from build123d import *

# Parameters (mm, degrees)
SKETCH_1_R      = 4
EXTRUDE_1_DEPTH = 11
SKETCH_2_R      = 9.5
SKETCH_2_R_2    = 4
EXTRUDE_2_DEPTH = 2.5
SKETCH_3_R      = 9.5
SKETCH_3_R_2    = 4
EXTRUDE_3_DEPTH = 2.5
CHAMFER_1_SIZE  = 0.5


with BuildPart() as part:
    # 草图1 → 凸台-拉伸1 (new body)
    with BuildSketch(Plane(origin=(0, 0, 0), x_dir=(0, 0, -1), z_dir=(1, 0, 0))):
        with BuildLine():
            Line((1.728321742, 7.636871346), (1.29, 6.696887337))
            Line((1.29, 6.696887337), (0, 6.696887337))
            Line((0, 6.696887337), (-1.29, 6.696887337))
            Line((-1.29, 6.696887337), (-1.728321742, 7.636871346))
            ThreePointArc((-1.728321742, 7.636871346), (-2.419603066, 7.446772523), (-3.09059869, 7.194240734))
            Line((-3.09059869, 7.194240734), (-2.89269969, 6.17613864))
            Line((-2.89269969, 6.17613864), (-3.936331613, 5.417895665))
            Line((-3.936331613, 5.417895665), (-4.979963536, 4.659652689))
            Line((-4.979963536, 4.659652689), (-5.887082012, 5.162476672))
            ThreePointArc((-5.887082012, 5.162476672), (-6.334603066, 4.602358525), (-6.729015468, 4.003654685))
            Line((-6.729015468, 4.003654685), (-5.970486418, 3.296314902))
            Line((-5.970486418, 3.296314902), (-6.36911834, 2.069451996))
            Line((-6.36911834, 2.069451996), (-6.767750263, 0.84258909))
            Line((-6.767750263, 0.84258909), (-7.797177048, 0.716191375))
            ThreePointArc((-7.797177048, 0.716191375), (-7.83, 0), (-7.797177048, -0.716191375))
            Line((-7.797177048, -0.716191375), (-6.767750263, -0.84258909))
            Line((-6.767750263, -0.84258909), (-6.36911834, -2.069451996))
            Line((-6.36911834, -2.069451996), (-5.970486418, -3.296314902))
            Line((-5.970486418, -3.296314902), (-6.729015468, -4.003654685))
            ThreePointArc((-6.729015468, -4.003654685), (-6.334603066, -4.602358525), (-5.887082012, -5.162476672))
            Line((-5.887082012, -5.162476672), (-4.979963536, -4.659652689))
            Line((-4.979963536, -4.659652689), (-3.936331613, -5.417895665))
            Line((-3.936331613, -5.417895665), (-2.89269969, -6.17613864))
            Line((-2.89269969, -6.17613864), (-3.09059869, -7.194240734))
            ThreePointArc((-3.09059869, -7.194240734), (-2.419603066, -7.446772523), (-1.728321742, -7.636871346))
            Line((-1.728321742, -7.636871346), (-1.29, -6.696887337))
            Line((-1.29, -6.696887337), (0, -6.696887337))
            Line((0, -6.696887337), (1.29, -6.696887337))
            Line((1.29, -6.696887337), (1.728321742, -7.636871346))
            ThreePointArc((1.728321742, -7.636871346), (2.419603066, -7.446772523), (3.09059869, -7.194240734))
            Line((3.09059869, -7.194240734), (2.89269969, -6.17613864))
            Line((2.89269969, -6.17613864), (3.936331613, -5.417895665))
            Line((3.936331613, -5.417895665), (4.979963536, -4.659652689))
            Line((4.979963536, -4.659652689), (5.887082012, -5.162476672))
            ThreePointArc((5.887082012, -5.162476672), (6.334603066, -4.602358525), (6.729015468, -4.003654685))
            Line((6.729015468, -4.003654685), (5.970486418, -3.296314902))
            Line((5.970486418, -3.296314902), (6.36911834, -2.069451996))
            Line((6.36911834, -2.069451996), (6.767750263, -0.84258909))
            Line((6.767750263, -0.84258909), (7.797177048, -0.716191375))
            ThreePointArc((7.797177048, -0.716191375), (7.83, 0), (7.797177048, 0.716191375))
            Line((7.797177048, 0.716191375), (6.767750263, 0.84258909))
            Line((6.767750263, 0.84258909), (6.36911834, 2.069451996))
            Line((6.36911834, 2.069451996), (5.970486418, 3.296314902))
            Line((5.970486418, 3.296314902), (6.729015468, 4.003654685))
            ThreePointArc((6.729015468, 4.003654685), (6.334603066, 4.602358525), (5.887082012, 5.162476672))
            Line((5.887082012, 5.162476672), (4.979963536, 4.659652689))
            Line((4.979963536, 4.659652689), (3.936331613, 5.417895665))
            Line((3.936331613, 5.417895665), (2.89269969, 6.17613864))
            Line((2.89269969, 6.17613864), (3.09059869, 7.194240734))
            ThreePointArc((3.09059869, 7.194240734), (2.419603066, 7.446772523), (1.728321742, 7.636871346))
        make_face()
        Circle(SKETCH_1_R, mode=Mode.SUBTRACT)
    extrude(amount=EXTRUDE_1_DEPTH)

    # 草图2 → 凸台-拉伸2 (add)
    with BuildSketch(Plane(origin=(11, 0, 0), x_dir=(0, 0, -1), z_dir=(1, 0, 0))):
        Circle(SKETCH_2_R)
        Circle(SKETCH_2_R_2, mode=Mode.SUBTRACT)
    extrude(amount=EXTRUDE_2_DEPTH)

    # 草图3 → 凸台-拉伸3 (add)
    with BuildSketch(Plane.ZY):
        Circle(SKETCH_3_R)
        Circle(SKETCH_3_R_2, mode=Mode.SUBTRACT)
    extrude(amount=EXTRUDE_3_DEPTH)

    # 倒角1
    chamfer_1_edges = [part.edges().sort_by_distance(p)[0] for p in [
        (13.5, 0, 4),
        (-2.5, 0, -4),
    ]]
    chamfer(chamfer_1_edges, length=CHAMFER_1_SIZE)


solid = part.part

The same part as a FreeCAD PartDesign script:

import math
import FreeCAD as App
import Part
import Sketcher

V = App.Vector
Q = App.Units.Quantity


def edges_at(feature, points):
    """Names of the edges that pass closest to the given points."""
    edges = feature.Shape.Edges
    near = lambda p: min(range(len(edges)), key=lambda i: edges[i].distToShape(Part.Vertex(*p))[0])
    return sorted({f"Edge{near(p) + 1}" for p in points})

doc = App.newDocument("Part")
body = doc.addObject("PartDesign::Body", "Body")

sketch1 = doc.addObject("Sketcher::SketchObject", "Sketch")
body.addObject(sketch1)
sketch1.AttachmentSupport = (doc.YZ_Plane, [""])
sketch1.MapMode = "FlatFace"
sketch1.addGeometry(Part.LineSegment(V(7.6, -1.7, 0), V(6.7, -1.3, 0)), False)
sketch1.addGeometry(Part.LineSegment(V(6.7, -1.3, 0), V(6.7, 1.3, 0)), False)
sketch1.addGeometry(Part.LineSegment(V(6.7, 1.3, 0), V(7.6, 1.7, 0)), False)
sketch1.addGeometry(Part.ArcOfCircle(Part.Circle(V(0, 0, 0), V(0, 0, 1), 7.8), math.radians(12.75), math.radians(23.25)), False)
sketch1.addGeometry(Part.LineSegment(V(7.2, 3.1, 0), V(6.2, 2.9, 0)), False)
sketch1.addGeometry(Part.LineSegment(V(6.2, 2.9, 0), V(5.4, 3.9, 0)), False)
sketch1.addGeometry(Part.LineSegment(V(5.4, 3.9, 0), V(4.7, 5, 0)), False)
sketch1.addGeometry(Part.LineSegment(V(4.7, 5, 0), V(5.2, 5.9, 0)), False)
sketch1.addGeometry(Part.ArcOfCircle(Part.Circle(V(0, 0, 0), V(0, 0, 1), 7.8), math.radians(48.75), math.radians(59.25)), False)
sketch1.addGeometry(Part.LineSegment(V(4, 6.7, 0), V(3.3, 6, 0)), False)
sketch1.addGeometry(Part.LineSegment(V(3.3, 6, 0), V(2.1, 6.4, 0)), False)
sketch1.addGeometry(Part.LineSegment(V(2.1, 6.4, 0), V(0.8, 6.8, 0)), False)
sketch1.addGeometry(Part.LineSegment(V(0.8, 6.8, 0), V(0.7, 7.8, 0)), False)
sketch1.addGeometry(Part.ArcOfCircle(Part.Circle(V(0, 0, 0), V(0, 0, 1), 7.8), math.radians(84.75), math.radians(95.25)), False)
sketch1.addGeometry(Part.LineSegment(V(-0.7, 7.8, 0), V(-0.8, 6.8, 0)), False)
sketch1.addGeometry(Part.LineSegment(V(-0.8, 6.8, 0), V(-2.1, 6.4, 0)), False)
sketch1.addGeometry(Part.LineSegment(V(-2.1, 6.4, 0), V(-3.3, 6, 0)), False)
sketch1.addGeometry(Part.LineSegment(V(-3.3, 6, 0), V(-4, 6.7, 0)), False)
sketch1.addGeometry(Part.ArcOfCircle(Part.Circle(V(0, 0, 0), V(0, 0, 1), 7.8), math.radians(120.75), math.radians(131.25)), False)
sketch1.addGeometry(Part.LineSegment(V(-5.2, 5.9, 0), V(-4.7, 5, 0)), False)
sketch1.addGeometry(Part.LineSegment(V(-4.7, 5, 0), V(-5.4, 3.9, 0)), False)
sketch1.addGeometry(Part.LineSegment(V(-5.4, 3.9, 0), V(-6.2, 2.9, 0)), False)
sketch1.addGeometry(Part.LineSegment(V(-6.2, 2.9, 0), V(-7.2, 3.1, 0)), False)
sketch1.addGeometry(Part.ArcOfCircle(Part.Circle(V(0, 0, 0), V(0, 0, 1), 7.8), math.radians(156.75), math.radians(167.25)), False)
sketch1.addGeometry(Part.LineSegment(V(-7.6, 1.7, 0), V(-6.7, 1.3, 0)), False)
sketch1.addGeometry(Part.LineSegment(V(-6.7, 1.3, 0), V(-6.7, -1.3, 0)), False)
sketch1.addGeometry(Part.LineSegment(V(-6.7, -1.3, 0), V(-7.6, -1.7, 0)), False)
sketch1.addGeometry(Part.ArcOfCircle(Part.Circle(V(0, 0, 0), V(0, 0, 1), 7.8), math.radians(-167.25), math.radians(-156.75)), False)
sketch1.addGeometry(Part.LineSegment(V(-7.2, -3.1, 0), V(-6.2, -2.9, 0)), False)
sketch1.addGeometry(Part.LineSegment(V(-6.2, -2.9, 0), V(-5.4, -3.9, 0)), False)
sketch1.addGeometry(Part.LineSegment(V(-5.4, -3.9, 0), V(-4.7, -5, 0)), False)
sketch1.addGeometry(Part.LineSegment(V(-4.7, -5, 0), V(-5.2, -5.9, 0)), False)
sketch1.addGeometry(Part.ArcOfCircle(Part.Circle(V(0, 0, 0), V(0, 0, 1), 7.8), math.radians(-131.25), math.radians(-120.75)), False)
sketch1.addGeometry(Part.LineSegment(V(-4, -6.7, 0), V(-3.3, -6, 0)), False)
sketch1.addGeometry(Part.LineSegment(V(-3.3, -6, 0), V(-2.1, -6.4, 0)), False)
sketch1.addGeometry(Part.LineSegment(V(-2.1, -6.4, 0), V(-0.8, -6.8, 0)), False)
sketch1.addGeometry(Part.LineSegment(V(-0.8, -6.8, 0), V(-0.7, -7.8, 0)), False)
sketch1.addGeometry(Part.ArcOfCircle(Part.Circle(V(0, 0, 0), V(0, 0, 1), 7.8), math.radians(-95.25), math.radians(-84.75)), False)
sketch1.addGeometry(Part.LineSegment(V(0.7, -7.8, 0), V(0.8, -6.8, 0)), False)
sketch1.addGeometry(Part.LineSegment(V(0.8, -6.8, 0), V(2.1, -6.4, 0)), False)
sketch1.addGeometry(Part.LineSegment(V(2.1, -6.4, 0), V(3.3, -6, 0)), False)
sketch1.addGeometry(Part.LineSegment(V(3.3, -6, 0), V(4, -6.7, 0)), False)
sketch1.addGeometry(Part.ArcOfCircle(Part.Circle(V(0, 0, 0), V(0, 0, 1), 7.8), math.radians(-59.25), math.radians(-48.75)), False)
sketch1.addGeometry(Part.LineSegment(V(5.2, -5.9, 0), V(4.7, -5, 0)), False)
sketch1.addGeometry(Part.LineSegment(V(4.7, -5, 0), V(5.4, -3.9, 0)), False)
sketch1.addGeometry(Part.LineSegment(V(5.4, -3.9, 0), V(6.2, -2.9, 0)), False)
sketch1.addGeometry(Part.LineSegment(V(6.2, -2.9, 0), V(7.2, -3.1, 0)), False)
sketch1.addGeometry(Part.ArcOfCircle(Part.Circle(V(0, 0, 0), V(0, 0, 1), 7.8), math.radians(-23.25), math.radians(-12.75)), False)
sketch1.addGeometry(Part.Circle(V(0, 0, 0), V(0, 0, 1), 4), False)
sketch1.addConstraint(Sketcher.Constraint("Coincident", 0, 2, 1, 1))
sketch1.addConstraint(Sketcher.Constraint("Coincident", 1, 2, 2, 1))
sketch1.addConstraint(Sketcher.Constraint("Coincident", 2, 2, 3, 1))
sketch1.addConstraint(Sketcher.Constraint("Coincident", 3, 2, 4, 1))
sketch1.addConstraint(Sketcher.Constraint("Coincident", 4, 2, 5, 1))
sketch1.addConstraint(Sketcher.Constraint("Coincident", 5, 2, 6, 1))
sketch1.addConstraint(Sketcher.Constraint("Coincident", 6, 2, 7, 1))
sketch1.addConstraint(Sketcher.Constraint("Coincident", 7, 2, 8, 1))
sketch1.addConstraint(Sketcher.Constraint("Coincident", 8, 2, 9, 1))
sketch1.addConstraint(Sketcher.Constraint("Coincident", 9, 2, 10, 1))
sketch1.addConstraint(Sketcher.Constraint("Coincident", 10, 2, 11, 1))
sketch1.addConstraint(Sketcher.Constraint("Coincident", 11, 2, 12, 1))
sketch1.addConstraint(Sketcher.Constraint("Coincident", 12, 2, 13, 1))
sketch1.addConstraint(Sketcher.Constraint("Coincident", 13, 2, 14, 1))
sketch1.addConstraint(Sketcher.Constraint("Coincident", 14, 2, 15, 1))
sketch1.addConstraint(Sketcher.Constraint("Coincident", 15, 2, 16, 1))
sketch1.addConstraint(Sketcher.Constraint("Coincident", 16, 2, 17, 1))
sketch1.addConstraint(Sketcher.Constraint("Coincident", 17, 2, 18, 1))
sketch1.addConstraint(Sketcher.Constraint("Coincident", 18, 2, 19, 1))
sketch1.addConstraint(Sketcher.Constraint("Coincident", 19, 2, 20, 1))
sketch1.addConstraint(Sketcher.Constraint("Coincident", 20, 2, 21, 1))
sketch1.addConstraint(Sketcher.Constraint("Coincident", 21, 2, 22, 1))
sketch1.addConstraint(Sketcher.Constraint("Coincident", 22, 2, 23, 1))
sketch1.addConstraint(Sketcher.Constraint("Coincident", 23, 2, 24, 1))
sketch1.addConstraint(Sketcher.Constraint("Coincident", 24, 2, 25, 1))
sketch1.addConstraint(Sketcher.Constraint("Coincident", 25, 2, 26, 1))
sketch1.addConstraint(Sketcher.Constraint("Coincident", 26, 2, 27, 1))
sketch1.addConstraint(Sketcher.Constraint("Coincident", 27, 2, 28, 1))
sketch1.addConstraint(Sketcher.Constraint("Coincident", 28, 2, 29, 1))
sketch1.addConstraint(Sketcher.Constraint("Coincident", 29, 2, 30, 1))
sketch1.addConstraint(Sketcher.Constraint("Coincident", 30, 2, 31, 1))
sketch1.addConstraint(Sketcher.Constraint("Coincident", 31, 2, 32, 1))
sketch1.addConstraint(Sketcher.Constraint("Coincident", 32, 2, 33, 1))
sketch1.addConstraint(Sketcher.Constraint("Coincident", 33, 2, 34, 1))
sketch1.addConstraint(Sketcher.Constraint("Coincident", 34, 2, 35, 1))
sketch1.addConstraint(Sketcher.Constraint("Coincident", 35, 2, 36, 1))
sketch1.addConstraint(Sketcher.Constraint("Coincident", 36, 2, 37, 1))
sketch1.addConstraint(Sketcher.Constraint("Coincident", 37, 2, 38, 1))
sketch1.addConstraint(Sketcher.Constraint("Coincident", 38, 2, 39, 1))
sketch1.addConstraint(Sketcher.Constraint("Coincident", 39, 2, 40, 1))
sketch1.addConstraint(Sketcher.Constraint("Coincident", 40, 2, 41, 1))
sketch1.addConstraint(Sketcher.Constraint("Coincident", 41, 2, 42, 1))
sketch1.addConstraint(Sketcher.Constraint("Coincident", 42, 2, 43, 1))
sketch1.addConstraint(Sketcher.Constraint("Coincident", 43, 2, 44, 1))
sketch1.addConstraint(Sketcher.Constraint("Coincident", 44, 2, 45, 1))
sketch1.addConstraint(Sketcher.Constraint("Coincident", 45, 2, 46, 1))
sketch1.addConstraint(Sketcher.Constraint("Coincident", 46, 2, 47, 1))
sketch1.addConstraint(Sketcher.Constraint("Coincident", 47, 2, 0, 1))
sketch1.addConstraint(Sketcher.Constraint("Vertical", 1))
sketch1.addConstraint(Sketcher.Constraint("Vertical", 25))
sketch1.addConstraint(Sketcher.Constraint("Coincident", 3, 3, -1, 1))
sketch1.addConstraint(Sketcher.Constraint("Coincident", 8, 3, -1, 1))
sketch1.addConstraint(Sketcher.Constraint("Coincident", 13, 3, -1, 1))
sketch1.addConstraint(Sketcher.Constraint("Coincident", 18, 3, -1, 1))
sketch1.addConstraint(Sketcher.Constraint("Coincident", 23, 3, -1, 1))
sketch1.addConstraint(Sketcher.Constraint("Coincident", 27, 3, -1, 1))
sketch1.addConstraint(Sketcher.Constraint("Coincident", 32, 3, -1, 1))
sketch1.addConstraint(Sketcher.Constraint("Coincident", 37, 3, -1, 1))
sketch1.addConstraint(Sketcher.Constraint("Coincident", 42, 3, -1, 1))
sketch1.addConstraint(Sketcher.Constraint("Coincident", 47, 3, -1, 1))
sketch1.addConstraint(Sketcher.Constraint("Coincident", 48, 3, -1, 1))
sketch1.addConstraint(Sketcher.Constraint("Equal", 3, 8))
sketch1.addConstraint(Sketcher.Constraint("Equal", 8, 13))
sketch1.addConstraint(Sketcher.Constraint("Equal", 13, 18))
sketch1.addConstraint(Sketcher.Constraint("Equal", 18, 23))
sketch1.addConstraint(Sketcher.Constraint("Equal", 23, 27))
sketch1.addConstraint(Sketcher.Constraint("Equal", 27, 32))
sketch1.addConstraint(Sketcher.Constraint("Equal", 32, 37))
sketch1.addConstraint(Sketcher.Constraint("Equal", 37, 42))
sketch1.addConstraint(Sketcher.Constraint("Equal", 42, 47))
sketch1.addConstraint(Sketcher.Constraint("Symmetric", 0, 2, 24, 2, -1, 1))
sketch1.addConstraint(Sketcher.Constraint("Symmetric", 4, 2, 28, 2, -1, 1))
sketch1.addConstraint(Sketcher.Constraint("Symmetric", 5, 2, 29, 2, -1, 1))
sketch1.addConstraint(Sketcher.Constraint("Symmetric", 6, 2, 30, 2, -1, 1))
sketch1.addConstraint(Sketcher.Constraint("Symmetric", 9, 2, 33, 2, -1, 1))
sketch1.addConstraint(Sketcher.Constraint("Symmetric", 10, 2, 34, 2, -1, 1))
sketch1.addConstraint(Sketcher.Constraint("Symmetric", 11, 2, 35, 2, -1, 1))
sketch1.addConstraint(Sketcher.Constraint("Symmetric", 14, 2, 38, 2, -1, 1))
sketch1.addConstraint(Sketcher.Constraint("Symmetric", 15, 2, 39, 2, -1, 1))
sketch1.addConstraint(Sketcher.Constraint("Symmetric", 16, 2, 40, 2, -1, 1))
sketch1.addConstraint(Sketcher.Constraint("Symmetric", 19, 2, 43, 2, -1, 1))
sketch1.addConstraint(Sketcher.Constraint("Symmetric", 20, 2, 44, 2, -1, 1))
sketch1.addConstraint(Sketcher.Constraint("Symmetric", 21, 2, 45, 2, -1, 1))
sketch1.addConstraint(Sketcher.Constraint("Symmetric", 11, 2, 14, 2, -2))
sketch1.addConstraint(Sketcher.Constraint("Symmetric", 10, 2, 15, 2, -2))
sketch1.addConstraint(Sketcher.Constraint("Symmetric", 9, 2, 16, 2, -2))
sketch1.addConstraint(Sketcher.Constraint("Symmetric", 6, 2, 19, 2, -2))
sketch1.addConstraint(Sketcher.Constraint("Symmetric", 5, 2, 20, 2, -2))
sketch1.addConstraint(Sketcher.Constraint("Symmetric", 4, 2, 21, 2, -2))
sketch1.addConstraint(Sketcher.Constraint("Parallel", 5, 6))
sketch1.addConstraint(Sketcher.Constraint("Parallel", 10, 11))
sketch1.addConstraint(Sketcher.Constraint("Parallel", 0, 24))
sketch1.addConstraint(Sketcher.Constraint("Parallel", 2, 26))
sketch1.addConstraint(Sketcher.Constraint("Parallel", 4, 28))
sketch1.addConstraint(Sketcher.Constraint("Parallel", 7, 31))
sketch1.addConstraint(Sketcher.Constraint("Parallel", 9, 33))
sketch1.addConstraint(Sketcher.Constraint("Parallel", 12, 36))
sketch1.addConstraint(Sketcher.Constraint("Parallel", 14, 38))
sketch1.addConstraint(Sketcher.Constraint("Parallel", 17, 41))
sketch1.addConstraint(Sketcher.Constraint("Parallel", 19, 43))
sketch1.addConstraint(Sketcher.Constraint("Parallel", 22, 46))
sketch1.addConstraint(Sketcher.Constraint("Horizontal", 12, 2, 13, 2))
sketch1.addConstraint(Sketcher.Constraint("Horizontal", 8, 2, 17, 2))
sketch1.addConstraint(Sketcher.Constraint("Horizontal", 7, 2, 18, 2))
sketch1.addConstraint(Sketcher.Constraint("Horizontal", 3, 2, 22, 2))
sketch1.addConstraint(Sketcher.Constraint("Horizontal", 2, 2, 23, 2))
sketch1.addConstraint(Sketcher.Constraint("Horizontal", 1, 2, 24, 2))
sketch1.addConstraint(Sketcher.Constraint("Horizontal", 0, 2, 25, 2))
sketch1.addConstraint(Sketcher.Constraint("Equal", 2, 4))
sketch1.addConstraint(Sketcher.Constraint("Equal", 5, 6))
sketch1.addConstraint(Sketcher.Constraint("Equal", 4, 7))
sketch1.addConstraint(Sketcher.Constraint("Equal", 7, 9))
sketch1.addConstraint(Sketcher.Constraint("Equal", 6, 10))
sketch1.addConstraint(Sketcher.Constraint("Equal", 10, 11))
sketch1.addConstraint(Sketcher.Constraint("Equal", 9, 12))
sketch1.addConstraint(Sketcher.Constraint("Diameter", 48, Q("8 mm")))
sketch1.addConstraint(Sketcher.Constraint("Angle", 0, Q("155 deg")))
sketch1.addConstraint(Sketcher.Constraint("Angle", 4, Q("-169 deg")))
sketch1.addConstraint(Sketcher.Constraint("Angle", 5, Q("126 deg")))
sketch1.addConstraint(Sketcher.Constraint("Angle", 7, Q("61 deg")))
sketch1.addConstraint(Sketcher.Constraint("Angle", 9, Q("-133 deg")))
sketch1.addConstraint(Sketcher.Constraint("Angle", 10, Q("162 deg")))
sketch1.addConstraint(Sketcher.Constraint("Angle", 12, Q("97 deg")))
sketch1.addConstraint(Sketcher.Constraint("Radius", 3, Q("7.83 mm")))
sketch1.addConstraint(Sketcher.Constraint("DistanceY", 1, 1, 1, 2, Q("2.58 mm")))
sketch1.addConstraint(Sketcher.Constraint("Distance", 5, Q("1.29 mm")))
sketch1.addConstraint(Sketcher.Constraint("DistanceX", 8, 2, 6, 2, Q("0.655998 mm")))
pad1 = doc.addObject("PartDesign::Pad", "Pad")
body.addObject(pad1)
pad1.Profile = sketch1
pad1.Length = 11

sketch2 = doc.addObject("Sketcher::SketchObject", "Sketch001")
body.addObject(sketch2)
sketch2.AttachmentSupport = (doc.YZ_Plane, [""])
sketch2.MapMode = "FlatFace"
sketch2.AttachmentOffset = App.Placement(V(0, 0, 11), App.Rotation())
sketch2.addGeometry(Part.Circle(V(0, 0, 0), V(0, 0, 1), 9.5), False)
sketch2.addGeometry(Part.Circle(V(0, 0, 0), V(0, 0, 1), 4), False)
sketch2.addConstraint(Sketcher.Constraint("Coincident", 0, 3, -1, 1))
sketch2.addConstraint(Sketcher.Constraint("Coincident", 1, 3, -1, 1))
sketch2.addConstraint(Sketcher.Constraint("Diameter", 0, Q("19 mm")))
sketch2.addConstraint(Sketcher.Constraint("Diameter", 1, Q("8 mm")))
pad2 = doc.addObject("PartDesign::Pad", "Pad001")
body.addObject(pad2)
pad2.Profile = sketch2
pad2.Length = 2.5

sketch3 = doc.addObject("Sketcher::SketchObject", "Sketch002")
body.addObject(sketch3)
sketch3.AttachmentSupport = (doc.YZ_Plane, [""])
sketch3.MapMode = "FlatFace"
sketch3.addGeometry(Part.Circle(V(0, 0, 0), V(0, 0, 1), 9.5), False)
sketch3.addGeometry(Part.Circle(V(0, 0, 0), V(0, 0, 1), 4), False)
sketch3.addConstraint(Sketcher.Constraint("Coincident", 0, 3, -1, 1))
sketch3.addConstraint(Sketcher.Constraint("Coincident", 1, 3, -1, 1))
sketch3.addConstraint(Sketcher.Constraint("Diameter", 0, Q("19 mm")))
sketch3.addConstraint(Sketcher.Constraint("Diameter", 1, Q("8 mm")))
pad3 = doc.addObject("PartDesign::Pad", "Pad002")
body.addObject(pad3)
pad3.Profile = sketch3
pad3.Length = 2.5
pad3.Reversed = True
doc.recompute()

chamfer = doc.addObject("PartDesign::Chamfer", "Chamfer")
body.addObject(chamfer)
chamfer.Base = (pad3, edges_at(pad3, [(13.5, 0, 4), (-2.5, 0, -4)]))
chamfer.Size = 0.5

doc.recompute()
